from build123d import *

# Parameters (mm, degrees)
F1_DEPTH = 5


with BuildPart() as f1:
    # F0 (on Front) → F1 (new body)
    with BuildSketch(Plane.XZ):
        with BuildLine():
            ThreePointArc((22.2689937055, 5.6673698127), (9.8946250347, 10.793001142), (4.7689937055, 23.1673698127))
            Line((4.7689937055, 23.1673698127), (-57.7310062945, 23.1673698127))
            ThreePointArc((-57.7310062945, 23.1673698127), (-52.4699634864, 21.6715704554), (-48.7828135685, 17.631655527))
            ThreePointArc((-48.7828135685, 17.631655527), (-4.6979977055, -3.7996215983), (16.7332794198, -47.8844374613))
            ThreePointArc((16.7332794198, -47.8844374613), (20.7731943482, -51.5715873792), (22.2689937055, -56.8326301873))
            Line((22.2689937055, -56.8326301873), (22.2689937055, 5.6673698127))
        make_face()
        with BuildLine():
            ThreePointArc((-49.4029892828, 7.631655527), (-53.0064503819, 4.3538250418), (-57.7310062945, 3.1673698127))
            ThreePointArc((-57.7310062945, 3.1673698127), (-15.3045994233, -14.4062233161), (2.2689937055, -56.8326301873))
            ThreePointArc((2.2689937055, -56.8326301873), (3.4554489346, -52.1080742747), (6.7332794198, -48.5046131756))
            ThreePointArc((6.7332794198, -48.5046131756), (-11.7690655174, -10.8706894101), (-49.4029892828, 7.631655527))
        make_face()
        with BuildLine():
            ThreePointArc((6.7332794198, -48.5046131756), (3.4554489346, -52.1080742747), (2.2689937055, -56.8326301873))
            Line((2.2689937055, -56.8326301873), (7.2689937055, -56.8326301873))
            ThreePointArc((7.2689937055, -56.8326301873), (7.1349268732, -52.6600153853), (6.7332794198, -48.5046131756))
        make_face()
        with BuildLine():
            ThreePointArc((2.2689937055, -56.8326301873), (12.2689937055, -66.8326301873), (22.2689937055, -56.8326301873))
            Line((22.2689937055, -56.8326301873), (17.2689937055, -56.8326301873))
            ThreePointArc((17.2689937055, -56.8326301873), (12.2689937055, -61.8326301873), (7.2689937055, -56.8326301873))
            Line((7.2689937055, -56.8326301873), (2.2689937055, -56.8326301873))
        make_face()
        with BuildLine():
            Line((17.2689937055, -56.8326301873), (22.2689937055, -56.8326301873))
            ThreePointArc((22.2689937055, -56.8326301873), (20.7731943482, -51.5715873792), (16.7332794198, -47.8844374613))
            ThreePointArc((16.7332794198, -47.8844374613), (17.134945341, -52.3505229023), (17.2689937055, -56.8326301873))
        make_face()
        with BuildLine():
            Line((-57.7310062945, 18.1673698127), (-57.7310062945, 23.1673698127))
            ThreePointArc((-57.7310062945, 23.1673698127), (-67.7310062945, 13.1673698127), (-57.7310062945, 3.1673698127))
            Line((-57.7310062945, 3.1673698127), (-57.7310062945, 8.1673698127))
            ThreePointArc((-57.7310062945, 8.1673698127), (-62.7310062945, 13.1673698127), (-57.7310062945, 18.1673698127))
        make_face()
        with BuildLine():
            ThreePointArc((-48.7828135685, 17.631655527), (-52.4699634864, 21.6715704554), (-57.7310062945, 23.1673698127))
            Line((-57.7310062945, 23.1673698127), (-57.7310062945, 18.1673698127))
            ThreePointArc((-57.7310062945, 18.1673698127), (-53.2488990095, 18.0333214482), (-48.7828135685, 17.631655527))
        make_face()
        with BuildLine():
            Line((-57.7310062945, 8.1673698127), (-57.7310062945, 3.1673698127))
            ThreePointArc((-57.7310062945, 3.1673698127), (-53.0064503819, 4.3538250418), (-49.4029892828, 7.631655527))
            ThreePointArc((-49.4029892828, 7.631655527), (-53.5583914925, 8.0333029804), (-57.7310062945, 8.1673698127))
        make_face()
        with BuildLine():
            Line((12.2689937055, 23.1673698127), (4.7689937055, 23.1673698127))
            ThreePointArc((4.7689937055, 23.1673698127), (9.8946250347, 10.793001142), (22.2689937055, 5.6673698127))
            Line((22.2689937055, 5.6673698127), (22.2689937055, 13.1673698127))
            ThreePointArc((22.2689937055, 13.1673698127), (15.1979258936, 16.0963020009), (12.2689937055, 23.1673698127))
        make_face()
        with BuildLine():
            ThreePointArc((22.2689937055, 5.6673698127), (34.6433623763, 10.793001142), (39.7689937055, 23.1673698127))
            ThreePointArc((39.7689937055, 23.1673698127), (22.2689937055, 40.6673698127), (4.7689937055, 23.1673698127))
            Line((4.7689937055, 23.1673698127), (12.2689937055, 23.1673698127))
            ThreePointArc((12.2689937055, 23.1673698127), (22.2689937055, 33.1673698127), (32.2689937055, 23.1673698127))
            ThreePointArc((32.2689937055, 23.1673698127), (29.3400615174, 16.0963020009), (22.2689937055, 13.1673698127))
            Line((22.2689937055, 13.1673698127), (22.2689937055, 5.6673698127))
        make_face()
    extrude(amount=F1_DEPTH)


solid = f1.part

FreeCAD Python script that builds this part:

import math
import FreeCAD as App
import Part
import Sketcher

V = App.Vector

doc = App.newDocument("Part")
params = doc.addObject("Spreadsheet::Sheet", "Params")
for row, (alias, value) in enumerate([
    ("sketch1_radius", "10 mm"),
    ("sketch1_radius2", "60 mm"),
    ("sketch1_radius3", "65 mm"),
    ("sketch1_radius4", "17.5 mm"),
    ("pad1_length", "5 mm"),
], start=1):
    params.set(f"A{row}", alias)
    params.set(f"B{row}", "=" + value)
    params.setAlias(f"B{row}", alias)

body = doc.addObject("PartDesign::Body", "Body")

# Sketch on XZ plane
sketch1 = doc.addObject("Sketcher::SketchObject", "Sketch")
body.addObject(sketch1)
sketch1.AttachmentSupport = (doc.XZ_Plane, [""])
sketch1.MapMode = "FlatFace"
sketch1.addGeometry(Part.ArcOfCircle(Part.Circle(V(-58, 13, 0), V(0, 0, 1), 10), math.radians(90), math.radians(270)), False)
sketch1.addGeometry(Part.ArcOfCircle(Part.Circle(V(-58, -57, 0), V(0, 0, 1), 60), math.radians(0), math.radians(90)), False)
sketch1.addGeometry(Part.ArcOfCircle(Part.Circle(V(12, -57, 0), V(0, 0, 1), 10), math.radians(180), math.radians(360)), False)
sketch1.addGeometry(Part.LineSegment(V(22, -57, 0), V(22, 6, 0)), False)
sketch1.addGeometry(Part.ArcOfCircle(Part.Circle(V(22, 23, 0), V(0, 0, 1), 18), math.radians(-90), math.radians(0)), False)
sketch1.addGeometry(Part.ArcOfCircle(Part.Circle(V(22, 23, 0), V(0, 0, 1), 18), math.radians(0), math.radians(180)), False)
sketch1.addGeometry(Part.LineSegment(V(5, 23, 0), V(-58, 23, 0)), False)
sketch1.addGeometry(Part.ArcOfCircle(Part.Circle(V(22, 23, 0), V(0, 0, 1), 10), math.radians(180), math.radians(270)), False)
sketch1.addGeometry(Part.ArcOfCircle(Part.Circle(V(22, 23, 0), V(0, 0, 1), 10), math.radians(0), math.radians(180)), False)
sketch1.addGeometry(Part.ArcOfCircle(Part.Circle(V(22, 23, 0), V(0, 0, 1), 10), math.radians(-90), math.radians(0)), False)
sketch1.addGeometry(Part.ArcOfCircle(Part.Circle(V(-58, -57, 0), V(0, 0, 1), 65), math.radians(7), math.radians(83)), False)
sketch1.addGeometry(Part.ArcOfCircle(Part.Circle(V(-58, -57, 0), V(0, 0, 1), 65), math.radians(82.64), math.radians(90)), False)
sketch1.addGeometry(Part.ArcOfCircle(Part.Circle(V(-58, 13, 0), V(0, 0, 1), 5), math.radians(90), math.radians(270)), False)
sketch1.addGeometry(Part.ArcOfCircle(Part.Circle(V(-58, -57, 0), V(0, 0, 1), 75), math.radians(83.15), math.radians(90)), False)
sketch1.addGeometry(Part.ArcOfCircle(Part.Circle(V(-58, -57, 0), V(0, 0, 1), 75), math.radians(7), math.radians(83)), False)
sketch1.addGeometry(Part.ArcOfCircle(Part.Circle(V(-58, -57, 0), V(0, 0, 1), 75), math.radians(0), math.radians(6.85)), False)
sketch1.addGeometry(Part.ArcOfCircle(Part.Circle(V(12, -57, 0), V(0, 0, 1), 5), math.radians(180), math.radians(360)), False)
sketch1.addGeometry(Part.ArcOfCircle(Part.Circle(V(-58, -57, 0), V(0, 0, 1), 65), math.radians(0), math.radians(7.36)), False)
sketch1.addConstraint(Sketcher.Constraint("Tangent", 0, 2, 1, 2))
sketch1.addConstraint(Sketcher.Constraint("Tangent", 1, 1, 2, 1))
sketch1.addConstraint(Sketcher.Constraint("Tangent", 2, 2, 3, 1))
sketch1.addConstraint(Sketcher.Constraint("Coincident", 3, 2, 4, 1))
sketch1.addConstraint(Sketcher.Constraint("Tangent", 4, 2, 5, 1))
sketch1.addConstraint(Sketcher.Constraint("Coincident", 5, 2, 6, 1))
sketch1.addConstraint(Sketcher.Constraint("Tangent", 6, 2, 0, 1))
sketch1.addConstraint(Sketcher.Constraint("Tangent", 7, 1, 8, 2))
sketch1.addConstraint(Sketcher.Constraint("Tangent", 8, 1, 9, 2))
sketch1.addConstraint(Sketcher.Constraint("Tangent", 9, 1, 7, 2))
sketch1.addConstraint(Sketcher.Constraint("Tangent", 10, 2, 11, 1))
sketch1.addConstraint(Sketcher.Constraint("Tangent", 11, 2, 12, 2))
sketch1.addConstraint(Sketcher.Constraint("Tangent", 12, 1, 13, 2))
sketch1.addConstraint(Sketcher.Constraint("Tangent", 13, 1, 14, 2))
sketch1.addConstraint(Sketcher.Constraint("Tangent", 14, 1, 15, 2))
sketch1.addConstraint(Sketcher.Constraint("Tangent", 15, 1, 16, 2))
sketch1.addConstraint(Sketcher.Constraint("Tangent", 16, 1, 17, 1))
sketch1.addConstraint(Sketcher.Constraint("Tangent", 17, 2, 10, 1))
sketch1.addConstraint(Sketcher.Constraint("Vertical", 3))
sketch1.addConstraint(Sketcher.Constraint("Horizontal", 6))
sketch1.addConstraint(Sketcher.Constraint("Coincident", 7, 3, 4, 3))
sketch1.addConstraint(Sketcher.Constraint("Coincident", 10, 3, 1, 3))
sketch1.addConstraint(Sketcher.Constraint("Coincident", 12, 3, 0, 3))
sketch1.addConstraint(Sketcher.Constraint("Coincident", 13, 3, 1, 3))
sketch1.addConstraint(Sketcher.Constraint("Coincident", 15, 3, 1, 3))
sketch1.addConstraint(Sketcher.Constraint("Coincident", 16, 3, 2, 3))
sketch1.addConstraint(Sketcher.Constraint("Equal", 0, 2))
sketch1.addConstraint(Sketcher.Constraint("Equal", 4, 5))
sketch1.addConstraint(Sketcher.Constraint("Equal", 2, 7))
sketch1.addConstraint(Sketcher.Constraint("Equal", 10, 11))
sketch1.addConstraint(Sketcher.Constraint("Horizontal", 1, 3, 2, 3))
sketch1.addConstraint(Sketcher.Constraint("Horizontal", 9, 3, 4, 2))
sketch1.addConstraint(Sketcher.Constraint("Horizontal", 4, 2, 5, 2))
sketch1.addConstraint(Sketcher.Constraint("Horizontal", 6, 2, 7, 1))
sketch1.addConstraint(Sketcher.Constraint("Horizontal", 7, 1, 8, 1))
sketch1.addConstraint(Sketcher.Constraint("Vertical", 0, 3, 1, 3))
sketch1.addConstraint(Sketcher.Constraint("Vertical", 9, 3, 2, 2))
sketch1.addConstraint(Sketcher.Constraint("Vertical", 3, 2, 9, 1))
sketch1.addConstraint(Sketcher.Constraint("Radius", 0, 10.0))
sketch1.addConstraint(Sketcher.Constraint("Radius", 1, 60.0))
sketch1.addConstraint(Sketcher.Constraint("Radius", 10, 65.0))
sketch1.addConstraint(Sketcher.Constraint("Radius", 4, 17.5))
sketch1.addConstraint(Sketcher.Constraint("DistanceY", 10, 2, 13, 1, 10.0))
sketch1.addConstraint(Sketcher.Constraint("DistanceX", 17, 2, 14, 1, 10.0))
sketch1.addConstraint(Sketcher.Constraint("DistanceY", -1, 1, 0, 3, 13.16737))
sketch1.addConstraint(Sketcher.Constraint("DistanceX", 10, 2, -1, 1, 49.402989))
sketch1.addConstraint(Sketcher.Constraint("DistanceX", -1, 1, 14, 1, 16.733279))
sketch1.addConstraint(Sketcher.Constraint("DistanceX", 0, 3, -1, 1, 57.731006))
sketch1.setExpression("Constraints[38]", "Params.sketch1_radius")
sketch1.setExpression("Constraints[39]", "Params.sketch1_radius2")
sketch1.setExpression("Constraints[40]", "Params.sketch1_radius3")
sketch1.setExpression("Constraints[41]", "Params.sketch1_radius4")
pad1 = doc.addObject("PartDesign::Pad", "Pad")
body.addObject(pad1)
pad1.Profile = sketch1
pad1.setExpression("Length", "Params.pad1_length")

doc.recompute()
